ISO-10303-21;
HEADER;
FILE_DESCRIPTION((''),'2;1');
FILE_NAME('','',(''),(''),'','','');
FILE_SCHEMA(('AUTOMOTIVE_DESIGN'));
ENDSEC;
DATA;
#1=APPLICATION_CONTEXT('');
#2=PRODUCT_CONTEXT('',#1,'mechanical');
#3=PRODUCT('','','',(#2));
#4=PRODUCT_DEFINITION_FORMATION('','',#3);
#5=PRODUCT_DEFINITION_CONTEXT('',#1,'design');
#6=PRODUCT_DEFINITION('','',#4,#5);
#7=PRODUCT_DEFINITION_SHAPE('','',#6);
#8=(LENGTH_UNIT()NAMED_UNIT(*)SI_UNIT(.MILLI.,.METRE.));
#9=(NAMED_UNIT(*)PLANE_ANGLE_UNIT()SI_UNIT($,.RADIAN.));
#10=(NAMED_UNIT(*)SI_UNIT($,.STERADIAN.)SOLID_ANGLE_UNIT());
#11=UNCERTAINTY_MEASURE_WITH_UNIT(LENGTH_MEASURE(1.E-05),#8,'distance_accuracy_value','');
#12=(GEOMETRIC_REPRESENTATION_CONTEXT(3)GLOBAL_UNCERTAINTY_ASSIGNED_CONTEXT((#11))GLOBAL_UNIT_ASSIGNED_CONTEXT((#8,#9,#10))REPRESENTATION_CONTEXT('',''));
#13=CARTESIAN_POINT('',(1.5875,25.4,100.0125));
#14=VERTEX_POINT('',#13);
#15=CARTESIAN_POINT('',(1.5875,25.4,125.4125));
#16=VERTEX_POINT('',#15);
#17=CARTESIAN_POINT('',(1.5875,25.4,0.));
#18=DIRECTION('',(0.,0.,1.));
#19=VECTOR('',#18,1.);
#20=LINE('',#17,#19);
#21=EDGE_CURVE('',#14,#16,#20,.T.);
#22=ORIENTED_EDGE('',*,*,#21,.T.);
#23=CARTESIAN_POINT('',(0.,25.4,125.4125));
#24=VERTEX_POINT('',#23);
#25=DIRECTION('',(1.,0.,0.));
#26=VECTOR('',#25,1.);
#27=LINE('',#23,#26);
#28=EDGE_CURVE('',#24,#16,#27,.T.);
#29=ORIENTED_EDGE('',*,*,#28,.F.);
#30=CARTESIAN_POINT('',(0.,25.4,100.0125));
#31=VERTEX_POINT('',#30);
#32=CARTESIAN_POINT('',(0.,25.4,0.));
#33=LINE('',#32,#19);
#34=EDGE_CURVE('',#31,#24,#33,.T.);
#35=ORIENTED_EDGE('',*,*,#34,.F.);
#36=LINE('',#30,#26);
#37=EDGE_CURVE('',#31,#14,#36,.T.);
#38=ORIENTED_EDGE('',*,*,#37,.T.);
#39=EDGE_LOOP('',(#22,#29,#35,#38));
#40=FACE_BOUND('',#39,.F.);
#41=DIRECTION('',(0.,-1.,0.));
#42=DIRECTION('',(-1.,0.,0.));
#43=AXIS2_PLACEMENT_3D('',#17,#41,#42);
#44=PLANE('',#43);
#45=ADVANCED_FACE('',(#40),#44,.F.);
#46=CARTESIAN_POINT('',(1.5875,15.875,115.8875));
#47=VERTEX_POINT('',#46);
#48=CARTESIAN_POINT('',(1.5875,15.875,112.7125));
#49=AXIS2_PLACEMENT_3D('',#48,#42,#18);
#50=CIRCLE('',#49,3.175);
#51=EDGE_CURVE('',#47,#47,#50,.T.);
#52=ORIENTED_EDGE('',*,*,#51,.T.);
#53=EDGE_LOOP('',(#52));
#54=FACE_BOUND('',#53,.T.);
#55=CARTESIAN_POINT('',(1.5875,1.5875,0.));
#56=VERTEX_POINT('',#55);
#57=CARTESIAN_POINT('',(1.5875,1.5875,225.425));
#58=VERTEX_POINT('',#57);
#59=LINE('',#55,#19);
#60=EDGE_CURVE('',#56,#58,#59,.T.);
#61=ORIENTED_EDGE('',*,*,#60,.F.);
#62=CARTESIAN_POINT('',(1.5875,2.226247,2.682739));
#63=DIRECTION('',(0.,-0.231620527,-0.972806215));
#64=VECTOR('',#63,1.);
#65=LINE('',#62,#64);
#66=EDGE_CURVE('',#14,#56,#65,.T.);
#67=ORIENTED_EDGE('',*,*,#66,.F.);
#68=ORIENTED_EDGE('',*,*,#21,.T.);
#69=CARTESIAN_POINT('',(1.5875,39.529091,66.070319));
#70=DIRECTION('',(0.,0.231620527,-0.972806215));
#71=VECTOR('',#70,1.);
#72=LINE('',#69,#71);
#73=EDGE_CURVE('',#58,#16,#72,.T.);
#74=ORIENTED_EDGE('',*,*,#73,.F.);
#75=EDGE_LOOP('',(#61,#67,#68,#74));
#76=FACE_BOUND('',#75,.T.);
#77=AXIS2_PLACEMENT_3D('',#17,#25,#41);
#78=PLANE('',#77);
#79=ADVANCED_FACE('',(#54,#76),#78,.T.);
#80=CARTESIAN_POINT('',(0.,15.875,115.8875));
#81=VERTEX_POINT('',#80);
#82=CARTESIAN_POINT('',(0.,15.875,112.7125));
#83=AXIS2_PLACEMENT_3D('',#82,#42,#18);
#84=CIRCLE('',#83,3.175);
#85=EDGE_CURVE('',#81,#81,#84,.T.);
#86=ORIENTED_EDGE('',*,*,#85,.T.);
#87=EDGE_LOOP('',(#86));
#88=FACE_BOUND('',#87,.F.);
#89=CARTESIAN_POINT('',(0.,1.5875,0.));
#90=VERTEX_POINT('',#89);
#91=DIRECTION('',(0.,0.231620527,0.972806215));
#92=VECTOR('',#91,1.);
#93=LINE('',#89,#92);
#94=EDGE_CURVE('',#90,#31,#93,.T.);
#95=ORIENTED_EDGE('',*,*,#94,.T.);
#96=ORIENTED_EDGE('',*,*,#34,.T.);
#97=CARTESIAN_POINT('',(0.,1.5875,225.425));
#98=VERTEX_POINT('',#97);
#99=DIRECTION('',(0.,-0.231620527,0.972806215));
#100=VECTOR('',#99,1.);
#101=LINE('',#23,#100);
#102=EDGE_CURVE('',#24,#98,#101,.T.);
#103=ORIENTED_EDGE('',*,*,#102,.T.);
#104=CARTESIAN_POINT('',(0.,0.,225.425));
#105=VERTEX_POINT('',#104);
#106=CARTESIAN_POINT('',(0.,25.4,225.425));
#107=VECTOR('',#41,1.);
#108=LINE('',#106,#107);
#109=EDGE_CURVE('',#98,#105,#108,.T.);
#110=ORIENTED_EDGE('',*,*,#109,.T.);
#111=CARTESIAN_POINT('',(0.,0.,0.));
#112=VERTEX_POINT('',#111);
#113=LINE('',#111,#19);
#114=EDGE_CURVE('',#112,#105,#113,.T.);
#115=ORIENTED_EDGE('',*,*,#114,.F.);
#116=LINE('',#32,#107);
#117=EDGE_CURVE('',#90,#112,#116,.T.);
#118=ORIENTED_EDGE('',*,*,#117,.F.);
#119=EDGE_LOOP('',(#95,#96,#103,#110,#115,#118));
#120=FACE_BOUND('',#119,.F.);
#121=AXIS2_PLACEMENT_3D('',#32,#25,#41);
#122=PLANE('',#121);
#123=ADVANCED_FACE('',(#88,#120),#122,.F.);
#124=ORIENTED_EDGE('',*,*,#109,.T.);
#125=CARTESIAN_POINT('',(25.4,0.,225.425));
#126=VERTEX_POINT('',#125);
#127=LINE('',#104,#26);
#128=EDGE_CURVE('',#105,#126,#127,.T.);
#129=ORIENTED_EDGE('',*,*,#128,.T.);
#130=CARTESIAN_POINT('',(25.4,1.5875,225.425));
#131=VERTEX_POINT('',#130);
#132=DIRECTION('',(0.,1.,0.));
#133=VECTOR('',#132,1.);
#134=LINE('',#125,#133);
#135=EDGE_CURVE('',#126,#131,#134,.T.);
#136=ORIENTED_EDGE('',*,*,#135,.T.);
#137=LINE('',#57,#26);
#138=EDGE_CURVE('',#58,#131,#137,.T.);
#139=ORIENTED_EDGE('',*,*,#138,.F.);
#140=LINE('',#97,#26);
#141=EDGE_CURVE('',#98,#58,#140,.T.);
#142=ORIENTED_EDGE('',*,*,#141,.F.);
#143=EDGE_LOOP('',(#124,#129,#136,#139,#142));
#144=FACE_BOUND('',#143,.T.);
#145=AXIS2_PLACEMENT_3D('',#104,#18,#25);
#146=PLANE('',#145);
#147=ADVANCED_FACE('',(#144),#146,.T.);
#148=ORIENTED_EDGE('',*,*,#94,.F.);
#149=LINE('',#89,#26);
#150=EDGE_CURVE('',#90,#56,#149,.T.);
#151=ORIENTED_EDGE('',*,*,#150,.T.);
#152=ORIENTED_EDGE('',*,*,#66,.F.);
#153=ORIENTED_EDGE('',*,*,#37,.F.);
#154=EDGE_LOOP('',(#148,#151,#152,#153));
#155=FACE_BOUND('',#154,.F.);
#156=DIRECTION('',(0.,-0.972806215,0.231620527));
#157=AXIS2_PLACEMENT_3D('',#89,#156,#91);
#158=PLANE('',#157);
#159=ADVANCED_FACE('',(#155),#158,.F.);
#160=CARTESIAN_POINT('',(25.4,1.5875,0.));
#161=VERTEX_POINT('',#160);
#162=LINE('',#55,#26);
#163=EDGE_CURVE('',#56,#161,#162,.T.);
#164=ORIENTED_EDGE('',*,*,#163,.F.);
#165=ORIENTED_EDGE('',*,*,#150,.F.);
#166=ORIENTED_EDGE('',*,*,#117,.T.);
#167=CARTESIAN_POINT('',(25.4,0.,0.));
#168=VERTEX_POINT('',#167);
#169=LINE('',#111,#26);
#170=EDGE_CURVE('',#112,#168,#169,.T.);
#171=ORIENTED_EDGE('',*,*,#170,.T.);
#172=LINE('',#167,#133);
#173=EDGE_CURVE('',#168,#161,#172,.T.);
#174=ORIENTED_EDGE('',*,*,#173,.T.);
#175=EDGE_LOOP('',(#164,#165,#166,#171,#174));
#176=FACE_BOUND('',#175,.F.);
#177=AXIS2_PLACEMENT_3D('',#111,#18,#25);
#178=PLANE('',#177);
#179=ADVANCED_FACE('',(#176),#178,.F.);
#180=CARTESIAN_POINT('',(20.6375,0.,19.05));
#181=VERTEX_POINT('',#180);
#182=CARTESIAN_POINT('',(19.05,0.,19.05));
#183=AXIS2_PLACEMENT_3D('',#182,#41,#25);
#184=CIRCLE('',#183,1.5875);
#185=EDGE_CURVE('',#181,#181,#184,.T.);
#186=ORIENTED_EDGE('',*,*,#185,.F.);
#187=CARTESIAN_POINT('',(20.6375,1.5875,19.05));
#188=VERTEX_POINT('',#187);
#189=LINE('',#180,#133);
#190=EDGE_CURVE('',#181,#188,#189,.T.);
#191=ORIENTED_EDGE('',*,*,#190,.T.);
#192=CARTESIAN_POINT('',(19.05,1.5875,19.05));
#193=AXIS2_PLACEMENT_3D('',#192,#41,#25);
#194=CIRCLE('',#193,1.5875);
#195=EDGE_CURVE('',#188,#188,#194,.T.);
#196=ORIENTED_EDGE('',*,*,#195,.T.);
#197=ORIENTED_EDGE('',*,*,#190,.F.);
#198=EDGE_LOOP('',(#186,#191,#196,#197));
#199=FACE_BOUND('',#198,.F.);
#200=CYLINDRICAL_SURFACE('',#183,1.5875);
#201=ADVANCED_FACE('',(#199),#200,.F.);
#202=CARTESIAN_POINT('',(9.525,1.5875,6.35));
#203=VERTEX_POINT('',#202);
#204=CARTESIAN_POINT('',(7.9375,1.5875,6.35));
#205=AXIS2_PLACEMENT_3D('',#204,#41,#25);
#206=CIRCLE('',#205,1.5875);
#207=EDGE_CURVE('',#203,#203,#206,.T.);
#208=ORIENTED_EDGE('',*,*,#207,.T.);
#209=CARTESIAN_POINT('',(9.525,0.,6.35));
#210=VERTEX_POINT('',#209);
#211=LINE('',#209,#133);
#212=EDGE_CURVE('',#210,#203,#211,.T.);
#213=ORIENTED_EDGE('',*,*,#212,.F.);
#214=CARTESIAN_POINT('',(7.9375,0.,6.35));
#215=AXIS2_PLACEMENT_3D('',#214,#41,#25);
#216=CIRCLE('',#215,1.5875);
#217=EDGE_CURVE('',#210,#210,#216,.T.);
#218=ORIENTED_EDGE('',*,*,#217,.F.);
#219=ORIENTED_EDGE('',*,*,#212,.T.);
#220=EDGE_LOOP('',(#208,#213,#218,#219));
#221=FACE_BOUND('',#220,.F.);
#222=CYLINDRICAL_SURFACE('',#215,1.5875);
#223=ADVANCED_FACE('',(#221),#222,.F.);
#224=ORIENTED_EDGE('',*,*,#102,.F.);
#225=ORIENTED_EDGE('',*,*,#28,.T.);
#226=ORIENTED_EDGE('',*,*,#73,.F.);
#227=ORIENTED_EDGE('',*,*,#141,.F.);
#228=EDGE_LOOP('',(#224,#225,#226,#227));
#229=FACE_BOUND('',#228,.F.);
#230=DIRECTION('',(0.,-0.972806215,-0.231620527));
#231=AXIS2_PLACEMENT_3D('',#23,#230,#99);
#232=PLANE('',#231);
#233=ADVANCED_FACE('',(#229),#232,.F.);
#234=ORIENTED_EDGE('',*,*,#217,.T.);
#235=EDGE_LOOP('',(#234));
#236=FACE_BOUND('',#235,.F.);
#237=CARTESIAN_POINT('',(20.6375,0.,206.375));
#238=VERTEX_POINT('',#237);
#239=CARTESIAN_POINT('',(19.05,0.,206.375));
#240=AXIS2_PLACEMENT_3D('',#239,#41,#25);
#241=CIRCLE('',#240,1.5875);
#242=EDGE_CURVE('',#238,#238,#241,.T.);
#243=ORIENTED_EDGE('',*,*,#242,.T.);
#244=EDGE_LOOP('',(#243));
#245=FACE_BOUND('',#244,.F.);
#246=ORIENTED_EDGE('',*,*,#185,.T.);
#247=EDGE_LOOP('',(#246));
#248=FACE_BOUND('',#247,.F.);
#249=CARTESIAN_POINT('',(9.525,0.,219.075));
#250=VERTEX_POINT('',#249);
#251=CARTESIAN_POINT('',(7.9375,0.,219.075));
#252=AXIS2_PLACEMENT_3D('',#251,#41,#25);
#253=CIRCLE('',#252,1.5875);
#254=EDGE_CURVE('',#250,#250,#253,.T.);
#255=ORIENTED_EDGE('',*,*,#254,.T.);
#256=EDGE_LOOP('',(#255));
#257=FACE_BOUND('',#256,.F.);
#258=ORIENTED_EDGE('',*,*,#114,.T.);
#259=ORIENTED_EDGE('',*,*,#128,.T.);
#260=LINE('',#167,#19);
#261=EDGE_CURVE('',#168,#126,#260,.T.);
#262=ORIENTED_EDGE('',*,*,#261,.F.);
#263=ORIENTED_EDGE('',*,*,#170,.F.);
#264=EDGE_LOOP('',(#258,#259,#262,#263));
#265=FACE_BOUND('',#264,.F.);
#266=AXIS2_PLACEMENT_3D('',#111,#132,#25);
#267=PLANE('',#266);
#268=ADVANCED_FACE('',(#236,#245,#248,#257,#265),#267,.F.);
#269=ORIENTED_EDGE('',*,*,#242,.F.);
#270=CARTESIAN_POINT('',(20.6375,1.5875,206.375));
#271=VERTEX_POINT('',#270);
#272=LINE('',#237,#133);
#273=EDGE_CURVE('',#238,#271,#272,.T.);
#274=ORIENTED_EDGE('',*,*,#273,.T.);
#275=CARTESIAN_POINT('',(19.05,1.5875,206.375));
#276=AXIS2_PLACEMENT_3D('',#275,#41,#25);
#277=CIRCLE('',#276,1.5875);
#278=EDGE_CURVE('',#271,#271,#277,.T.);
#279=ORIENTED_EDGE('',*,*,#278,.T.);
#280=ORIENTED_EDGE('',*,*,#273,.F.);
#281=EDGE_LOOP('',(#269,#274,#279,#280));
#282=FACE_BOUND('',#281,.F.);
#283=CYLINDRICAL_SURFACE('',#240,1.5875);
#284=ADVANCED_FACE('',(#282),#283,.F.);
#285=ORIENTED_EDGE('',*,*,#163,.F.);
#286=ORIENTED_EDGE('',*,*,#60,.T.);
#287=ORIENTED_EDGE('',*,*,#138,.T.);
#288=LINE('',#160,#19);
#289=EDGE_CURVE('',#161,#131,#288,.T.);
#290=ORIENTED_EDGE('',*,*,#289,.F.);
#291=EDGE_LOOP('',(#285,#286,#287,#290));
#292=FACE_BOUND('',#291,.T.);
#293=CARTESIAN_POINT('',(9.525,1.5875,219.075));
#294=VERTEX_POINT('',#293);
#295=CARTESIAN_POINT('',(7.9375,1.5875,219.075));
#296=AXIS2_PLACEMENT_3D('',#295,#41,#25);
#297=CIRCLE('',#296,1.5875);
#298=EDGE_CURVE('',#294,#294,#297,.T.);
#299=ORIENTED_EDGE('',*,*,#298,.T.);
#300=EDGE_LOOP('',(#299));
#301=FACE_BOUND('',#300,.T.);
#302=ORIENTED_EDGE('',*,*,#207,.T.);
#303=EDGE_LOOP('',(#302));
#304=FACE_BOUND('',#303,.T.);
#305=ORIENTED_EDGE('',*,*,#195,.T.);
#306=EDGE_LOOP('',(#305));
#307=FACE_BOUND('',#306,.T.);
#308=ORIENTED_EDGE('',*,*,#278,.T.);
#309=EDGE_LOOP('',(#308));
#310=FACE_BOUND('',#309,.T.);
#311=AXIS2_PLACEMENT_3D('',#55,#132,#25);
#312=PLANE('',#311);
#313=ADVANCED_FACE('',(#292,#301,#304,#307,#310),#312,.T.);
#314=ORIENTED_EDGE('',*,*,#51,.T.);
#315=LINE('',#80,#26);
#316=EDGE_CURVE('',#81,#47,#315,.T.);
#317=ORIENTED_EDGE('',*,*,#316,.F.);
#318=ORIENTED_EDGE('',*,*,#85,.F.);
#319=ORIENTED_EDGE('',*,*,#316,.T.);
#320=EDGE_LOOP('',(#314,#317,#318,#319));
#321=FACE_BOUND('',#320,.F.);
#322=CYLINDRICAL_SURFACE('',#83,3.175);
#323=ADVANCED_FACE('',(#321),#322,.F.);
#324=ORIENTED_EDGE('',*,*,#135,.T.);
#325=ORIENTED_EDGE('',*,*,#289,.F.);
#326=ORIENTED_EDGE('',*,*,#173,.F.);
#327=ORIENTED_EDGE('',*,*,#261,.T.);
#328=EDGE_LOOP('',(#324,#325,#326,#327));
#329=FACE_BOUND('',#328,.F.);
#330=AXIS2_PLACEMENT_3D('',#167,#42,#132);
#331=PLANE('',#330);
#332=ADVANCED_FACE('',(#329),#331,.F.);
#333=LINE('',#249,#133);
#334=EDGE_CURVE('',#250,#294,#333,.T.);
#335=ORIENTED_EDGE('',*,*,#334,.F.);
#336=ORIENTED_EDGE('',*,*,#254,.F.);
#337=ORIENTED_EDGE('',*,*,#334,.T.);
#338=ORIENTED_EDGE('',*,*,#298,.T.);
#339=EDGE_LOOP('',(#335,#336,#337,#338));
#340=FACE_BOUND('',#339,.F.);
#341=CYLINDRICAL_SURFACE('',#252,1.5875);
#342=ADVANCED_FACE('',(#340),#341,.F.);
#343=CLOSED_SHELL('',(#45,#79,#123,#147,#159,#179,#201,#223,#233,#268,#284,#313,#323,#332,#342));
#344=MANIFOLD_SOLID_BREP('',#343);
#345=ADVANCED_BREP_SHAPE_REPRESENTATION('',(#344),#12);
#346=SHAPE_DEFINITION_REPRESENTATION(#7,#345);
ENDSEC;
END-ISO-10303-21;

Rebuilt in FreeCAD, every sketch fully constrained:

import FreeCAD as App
import Part
import Sketcher
from FreeCAD import Vector
Q = App.Units.Quantity


def add_polygon(sketch, points):
    """Adds a closed chain of lines whose ends are joined by coincident constraints."""
    first, n = sketch.GeometryCount, len(points)
    for a, b in zip(points, points[1:] + points[:1]):
        sketch.addGeometry(Part.LineSegment(App.Vector(*a, 0), App.Vector(*b, 0)), False)
    for i in range(n):
        sketch.addConstraint(Sketcher.Constraint("Coincident", first + i, 2, first + (i + 1) % n, 1))

doc = App.newDocument("Part")
body = doc.addObject("PartDesign::Body", "Body")

sketch1 = body.newObject("Sketcher::SketchObject", "Sketch")
sketch1.AttachmentSupport = (doc.getObject("XY_Plane"), [""])
sketch1.MapMode = "FlatFace"
add_polygon(sketch1, [(0, 25.4), (0, 0), (25.4, 0), (25.4, 1.5875), (1.5875, 1.5875), (1.5875, 25.4)])
sketch1.addConstraint(Sketcher.Constraint("Vertical", 0))
sketch1.addConstraint(Sketcher.Constraint("Horizontal", 1))
sketch1.addConstraint(Sketcher.Constraint("Vertical", 2))
sketch1.addConstraint(Sketcher.Constraint("Horizontal", 3))
sketch1.addConstraint(Sketcher.Constraint("Vertical", 4))
sketch1.addConstraint(Sketcher.Constraint("Horizontal", 5))
sketch1.addConstraint(Sketcher.Constraint("Coincident", 0, 2, -1, 1))
sketch1.addConstraint(Sketcher.Constraint("Equal", 1, 0))
sketch1.addConstraint(Sketcher.Constraint("Equal", 5, 2))
sketch1.addConstraint(Sketcher.Constraint("DistanceX", 1, 1, 1, 2, Q("1 in")))
sketch1.addConstraint(Sketcher.Constraint("DistanceX", 5, 2, 5, 1, Q("0.0625 in")))
pad1 = body.newObject("PartDesign::Pad", "Pad")
pad1.Profile = sketch1
pad1.Length = Q("8.875 in")

sketch2 = body.newObject("Sketcher::SketchObject", "Sketch001")
sketch2.AttachmentSupport = (doc.getObject("XZ_Plane"), [""])
sketch2.MapMode = "FlatFace"
sketch2.addGeometry(Part.Circle(Vector(7.9375, 219.075, 0), Vector(0, 0, 1), 1.5875), False)
sketch2.addGeometry(Part.Circle(Vector(19.05, 206.375, 0), Vector(0, 0, 1), 1.5875), False)
sketch2.addGeometry(Part.Circle(Vector(7.9375, 6.35, 0), Vector(0, 0, 1), 1.5875), False)
sketch2.addGeometry(Part.Circle(Vector(19.05, 19.05, 0), Vector(0, 0, 1), 1.5875), False)
sketch2.addConstraint(Sketcher.Constraint("Equal", 0, 1))
sketch2.addConstraint(Sketcher.Constraint("Equal", 1, 2))
sketch2.addConstraint(Sketcher.Constraint("Equal", 2, 3))
sketch2.addConstraint(Sketcher.Constraint("Vertical", 0, 3, 2, 3))
sketch2.addConstraint(Sketcher.Constraint("Vertical", 1, 3, 3, 3))
sketch2.addConstraint(Sketcher.Constraint("Diameter", 0, Q("0.125 in")))
sketch2.addConstraint(Sketcher.Constraint("DistanceX", -1, 1, 1, 3, Q("0.75 in")))
sketch2.addConstraint(Sketcher.Constraint("DistanceY", -1, 1, 2, 3, Q("0.25 in")))
sketch2.addConstraint(Sketcher.Constraint("DistanceY", -1, 1, 3, 3, Q("0.75 in")))
sketch2.addConstraint(Sketcher.Constraint("DistanceX", -1, 1, 0, 3, Q("0.3125 in")))
sketch2.addConstraint(Sketcher.Constraint("DistanceY", 1, 3, 0, 3, Q("0.5 in")))
sketch2.addConstraint(Sketcher.Constraint("DistanceY", -1, 1, 0, 3, Q("8.625 in")))
pocket1 = body.newObject("PartDesign::Pocket", "Pocket")
pocket1.Profile = sketch2
pocket1.Length = Q("8.875 in")

sketch3 = body.newObject("Sketcher::SketchObject", "Sketch002")
sketch3.AttachmentSupport = (doc.getObject("YZ_Plane"), [""])
sketch3.MapMode = "FlatFace"
add_polygon(sketch3, [(25.4, 125.4125), (1.5875, 225.425), (25.4, 225.425)])
add_polygon(sketch3, [(25.4, 0), (1.5875, 0), (25.4, 100.0125)])
sketch3.addGeometry(Part.Circle(Vector(15.875, 112.7125, 0), Vector(0, 0, 1), 3.175), False)
sketch3.addConstraint(Sketcher.Constraint("Horizontal", 1))
sketch3.addConstraint(Sketcher.Constraint("Vertical", 2))
sketch3.addConstraint(Sketcher.Constraint("Horizontal", 3))
sketch3.addConstraint(Sketcher.Constraint("Vertical", 5))
sketch3.addConstraint(Sketcher.Constraint("PointOnObject", 3, 2, -1))
sketch3.addConstraint(Sketcher.Constraint("Vertical", 0, 2, 3, 2))
sketch3.addConstraint(Sketcher.Constraint("Vertical", 2, 2, 4, 2))
sketch3.addConstraint(Sketcher.Constraint("Equal", 2, 5))
sketch3.addConstraint(Sketcher.Constraint("Diameter", 6, Q("0.25 in")))
sketch3.addConstraint(Sketcher.Constraint("DistanceX", -1, 1, 1, 2, Q("1 in")))
sketch3.addConstraint(Sketcher.Constraint("DistanceY", 4, 2, 2, 2, Q("1 in")))
sketch3.addConstraint(Sketcher.Constraint("DistanceY", 6, 3, 2, 2, Q("0.5 in")))
sketch3.addConstraint(Sketcher.Constraint("DistanceX", -1, 1, 6, 3, Q("0.625 in")))
sketch3.addConstraint(Sketcher.Constraint("DistanceY", -1, 1, 6, 3, Q("4.4375 in")))
sketch3.addConstraint(Sketcher.Constraint("DistanceX", -1, 1, 0, 2, Q("0.0625 in")))
pocket2 = body.newObject("PartDesign::Pocket", "Pocket001")
pocket2.Profile = sketch3
pocket2.Length = Q("8.875 in")
pocket2.Reversed = True

doc.recompute()
